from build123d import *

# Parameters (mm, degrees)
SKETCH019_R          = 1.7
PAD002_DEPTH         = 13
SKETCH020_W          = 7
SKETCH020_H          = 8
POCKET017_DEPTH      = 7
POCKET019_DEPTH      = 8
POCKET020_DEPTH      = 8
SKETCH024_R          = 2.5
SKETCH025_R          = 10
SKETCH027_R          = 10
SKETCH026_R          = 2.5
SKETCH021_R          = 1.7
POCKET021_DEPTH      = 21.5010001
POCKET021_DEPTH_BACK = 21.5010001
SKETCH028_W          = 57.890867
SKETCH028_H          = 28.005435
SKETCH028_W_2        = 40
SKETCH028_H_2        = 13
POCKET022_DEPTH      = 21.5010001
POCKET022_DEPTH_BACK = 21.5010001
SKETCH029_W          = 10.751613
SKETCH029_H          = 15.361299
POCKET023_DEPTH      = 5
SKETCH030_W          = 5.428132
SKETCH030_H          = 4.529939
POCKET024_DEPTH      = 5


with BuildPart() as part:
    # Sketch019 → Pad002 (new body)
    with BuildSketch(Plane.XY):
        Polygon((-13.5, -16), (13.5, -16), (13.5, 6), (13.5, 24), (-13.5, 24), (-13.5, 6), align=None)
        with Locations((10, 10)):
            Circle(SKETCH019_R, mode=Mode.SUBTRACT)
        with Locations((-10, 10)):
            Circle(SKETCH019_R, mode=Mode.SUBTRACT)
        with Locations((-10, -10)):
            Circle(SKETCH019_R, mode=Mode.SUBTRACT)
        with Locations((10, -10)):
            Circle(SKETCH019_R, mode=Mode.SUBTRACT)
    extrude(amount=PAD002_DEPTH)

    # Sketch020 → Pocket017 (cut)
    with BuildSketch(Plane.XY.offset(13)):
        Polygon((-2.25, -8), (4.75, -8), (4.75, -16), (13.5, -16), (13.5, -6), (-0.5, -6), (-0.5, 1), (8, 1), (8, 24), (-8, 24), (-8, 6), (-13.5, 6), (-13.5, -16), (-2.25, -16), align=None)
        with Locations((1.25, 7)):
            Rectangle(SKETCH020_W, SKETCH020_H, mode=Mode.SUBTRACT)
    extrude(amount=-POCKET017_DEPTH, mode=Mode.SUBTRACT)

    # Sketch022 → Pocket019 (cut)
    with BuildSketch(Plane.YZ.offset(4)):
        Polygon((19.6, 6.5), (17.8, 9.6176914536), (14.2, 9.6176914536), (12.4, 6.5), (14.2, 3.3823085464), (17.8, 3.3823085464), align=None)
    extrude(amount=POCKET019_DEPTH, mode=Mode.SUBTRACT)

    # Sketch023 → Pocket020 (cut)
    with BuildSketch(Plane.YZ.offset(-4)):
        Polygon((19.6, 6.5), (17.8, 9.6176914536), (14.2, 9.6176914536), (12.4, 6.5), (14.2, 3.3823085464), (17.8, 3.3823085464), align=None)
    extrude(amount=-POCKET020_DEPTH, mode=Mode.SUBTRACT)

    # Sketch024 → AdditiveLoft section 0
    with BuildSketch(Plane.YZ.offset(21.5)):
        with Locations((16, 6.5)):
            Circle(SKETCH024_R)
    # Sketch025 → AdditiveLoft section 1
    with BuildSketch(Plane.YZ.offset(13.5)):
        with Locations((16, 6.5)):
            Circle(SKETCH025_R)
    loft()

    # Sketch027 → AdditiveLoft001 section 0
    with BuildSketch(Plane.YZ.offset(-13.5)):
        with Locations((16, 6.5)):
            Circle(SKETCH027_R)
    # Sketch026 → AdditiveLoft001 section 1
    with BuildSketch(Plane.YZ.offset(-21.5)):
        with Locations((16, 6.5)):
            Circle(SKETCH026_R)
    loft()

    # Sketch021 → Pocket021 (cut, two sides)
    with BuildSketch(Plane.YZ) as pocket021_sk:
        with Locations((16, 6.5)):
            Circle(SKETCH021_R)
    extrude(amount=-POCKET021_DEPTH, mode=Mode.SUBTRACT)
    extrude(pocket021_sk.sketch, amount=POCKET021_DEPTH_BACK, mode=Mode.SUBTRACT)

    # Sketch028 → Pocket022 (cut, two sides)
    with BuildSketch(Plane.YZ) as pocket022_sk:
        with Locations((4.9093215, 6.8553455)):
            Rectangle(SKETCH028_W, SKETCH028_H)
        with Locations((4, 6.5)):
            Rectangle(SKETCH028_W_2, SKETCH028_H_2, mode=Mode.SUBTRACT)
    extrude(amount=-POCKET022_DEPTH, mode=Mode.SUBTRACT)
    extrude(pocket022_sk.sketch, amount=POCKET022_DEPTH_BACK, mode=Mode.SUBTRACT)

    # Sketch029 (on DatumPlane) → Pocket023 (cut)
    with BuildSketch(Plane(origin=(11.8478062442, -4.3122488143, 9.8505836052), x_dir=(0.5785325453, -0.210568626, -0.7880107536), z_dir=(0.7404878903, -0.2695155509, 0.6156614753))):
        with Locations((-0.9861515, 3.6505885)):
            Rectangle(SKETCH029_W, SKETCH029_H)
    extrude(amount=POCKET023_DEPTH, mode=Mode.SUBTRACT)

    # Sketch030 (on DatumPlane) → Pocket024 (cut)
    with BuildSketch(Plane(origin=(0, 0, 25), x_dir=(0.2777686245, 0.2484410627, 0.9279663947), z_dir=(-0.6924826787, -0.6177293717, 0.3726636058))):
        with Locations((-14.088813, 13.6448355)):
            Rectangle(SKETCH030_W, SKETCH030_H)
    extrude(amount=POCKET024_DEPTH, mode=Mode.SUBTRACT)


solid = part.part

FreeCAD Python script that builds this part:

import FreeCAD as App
import Part
import Sketcher
Q = App.Units.Quantity


def add_polygon(sketch, points):
    """Adds a closed chain of lines whose ends are joined by coincident constraints."""
    first, n = sketch.GeometryCount, len(points)
    for a, b in zip(points, points[1:] + points[:1]):
        sketch.addGeometry(Part.LineSegment(App.Vector(*a, 0), App.Vector(*b, 0)), False)
    for i in range(n):
        sketch.addConstraint(Sketcher.Constraint("Coincident", first + i, 2, first + (i + 1) % n, 1))

doc = App.newDocument("Part")
body = doc.addObject("PartDesign::Body", "Body")

# Sketch on XY plane
sketch1 = body.newObject("Sketcher::SketchObject", "Sketch")
sketch1.AttachmentSupport = (doc.getObject("XY_Plane"), [""])
sketch1.MapMode = "FlatFace"
add_polygon(sketch1, [(-13.5, -16), (13.5, -16), (13.5, 24), (-13.5, 24)])  # lines 0-3
sketch1.addGeometry(Part.Circle(App.Vector(-10, -10, 0), App.Vector(0, 0, 1), 1.7), False)  # 4
sketch1.addGeometry(Part.Circle(App.Vector(10, -10, 0), App.Vector(0, 0, 1), 1.7), False)  # 5
sketch1.addGeometry(Part.Circle(App.Vector(-10, 10, 0), App.Vector(0, 0, 1), 1.7), False)  # 6
sketch1.addGeometry(Part.Circle(App.Vector(10, 10, 0), App.Vector(0, 0, 1), 1.7), False)  # 7
sketch1.addConstraint([
    Sketcher.Constraint("Horizontal", 0),
    Sketcher.Constraint("Vertical", 1),
    Sketcher.Constraint("Horizontal", 2),
    Sketcher.Constraint("Vertical", 3),
    Sketcher.Constraint("Equal", 4, 5),
    Sketcher.Constraint("Equal", 5, 6),
    Sketcher.Constraint("Equal", 6, 7),
    Sketcher.Constraint("Symmetric", 5, 3, 6, 3, -1, 1),
    Sketcher.Constraint("Symmetric", 4, 3, 7, 3, -1, 1),
    Sketcher.Constraint("Symmetric", 4, 3, 5, 3, -2),
    Sketcher.Constraint("Diameter", 4, Q("3.4 mm")),
    Sketcher.Constraint("DistanceX", 0, 1, 0, 2, Q("27 mm")),
    Sketcher.Constraint("DistanceY", 1, 1, 1, 2, Q("40 mm")),
    Sketcher.Constraint("DistanceX", 4, 3, -1, 1, Q("10 mm")),
    Sketcher.Constraint("DistanceY", 4, 3, -1, 1, Q("10 mm")),
    Sketcher.Constraint("DistanceY", 0, 2, -1, 1, Q("16 mm")),
    Sketcher.Constraint("DistanceX", -1, 1, 0, 2, Q("13.5 mm")),
])
pad1 = body.newObject("PartDesign::Pad", "Pad")
pad1.Profile = sketch1
pad1.Length = 13

# Sketch on XY plane
sketch2 = body.newObject("Sketcher::SketchObject", "Sketch001")
sketch2.AttachmentSupport = (doc.getObject("XY_Plane"), [""])
sketch2.MapMode = "FlatFace"
sketch2.AttachmentOffset = App.Placement(App.Vector(0, 0, 13), App.Rotation())
add_polygon(sketch2, [(-2.25, -8), (4.75, -8), (4.75, -16), (13.5, -16), (13.5, -6), (-0.5, -6), (-0.5, 1), (8, 1), (8, 24), (-8, 24), (-8, 6), (-13.5, 6), (-13.5, -16), (-2.25, -16)])  # lines 0-13
add_polygon(sketch2, [(4.75, 3), (-2.25, 3), (-2.25, 11), (4.75, 11)])  # lines 14-17
sketch2.addConstraint([
    Sketcher.Constraint("Horizontal", 0),
    Sketcher.Constraint("Vertical", 1),
    Sketcher.Constraint("Horizontal", 2),
    Sketcher.Constraint("Vertical", 3),
    Sketcher.Constraint("Horizontal", 4),
    Sketcher.Constraint("Vertical", 5),
    Sketcher.Constraint("Horizontal", 6),
    Sketcher.Constraint("Vertical", 7),
    Sketcher.Constraint("Horizontal", 8),
    Sketcher.Constraint("Vertical", 9),
    Sketcher.Constraint("Horizontal", 10),
    Sketcher.Constraint("Vertical", 11),
    Sketcher.Constraint("Horizontal", 12),
    Sketcher.Constraint("Vertical", 13),
    Sketcher.Constraint("Horizontal", 14),
    Sketcher.Constraint("Vertical", 15),
    Sketcher.Constraint("Horizontal", 16),
    Sketcher.Constraint("Vertical", 17),
    Sketcher.Constraint("Symmetric", 3, 2, 10, 2, -1, 1),
    Sketcher.Constraint("Horizontal", 2, 2, 11, 2),
    Sketcher.Constraint("Vertical", 13, 2, 14, 2),
    Sketcher.Constraint("Vertical", 1, 2, 16, 2),
    Sketcher.Constraint("Equal", 16, 5),
    Sketcher.Constraint("Equal", 13, 15),
    Sketcher.Constraint("DistanceX", 0, 1, 0, 2, Q("7 mm")),
    Sketcher.Constraint("DistanceX", 4, 2, 4, 1, Q("14 mm")),
    Sketcher.Constraint("DistanceX", 8, 2, 8, 1, Q("16 mm")),
    Sketcher.Constraint("DistanceY", 1, 2, 1, 1, Q("8 mm")),
    Sketcher.Constraint("DistanceY", 3, 1, 3, 2, Q("10 mm")),
    Sketcher.Constraint("DistanceY", 7, 1, 7, 2, Q("23 mm")),
    Sketcher.Constraint("DistanceY", 9, 2, 9, 1, Q("18 mm")),
    Sketcher.Constraint("DistanceX", 6, 1, 6, 2, Q("8.5 mm")),
    Sketcher.Constraint("DistanceX", 10, 2, 10, 1, Q("5.5 mm")),
    Sketcher.Constraint("DistanceY", -1, 1, 14, 2, Q("3 mm")),
    Sketcher.Constraint("DistanceX", 2, 1, 2, 2, Q("8.75 mm")),
])
pocket1 = body.newObject("PartDesign::Pocket", "Pocket")
pocket1.Profile = sketch2
pocket1.Length = 7

# Sketch on YZ plane
sketch3 = body.newObject("Sketcher::SketchObject", "Sketch002")
sketch3.AttachmentSupport = (doc.getObject("YZ_Plane"), [""])
sketch3.MapMode = "FlatFace"
sketch3.AttachmentOffset = App.Placement(App.Vector(0, 0, 4), App.Rotation())
add_polygon(sketch3, [(19.6, 6.5), (17.8, 9.617691), (14.2, 9.617691), (12.4, 6.5), (14.2, 3.382309), (17.8, 3.382309)])  # lines 0-5
sketch3.addConstraint([
    Sketcher.Constraint("Horizontal", 1),
    Sketcher.Constraint("Horizontal", 4),
    Sketcher.Constraint("Parallel", 0, 3),
    Sketcher.Constraint("Parallel", 2, 5),
    Sketcher.Constraint("Horizontal", 2, 2, 5, 2),
    Sketcher.Constraint("Vertical", 1, 2, 3, 2),
    Sketcher.Constraint("Vertical", 0, 2, 4, 2),
    Sketcher.Constraint("Angle", 0, Q("120 deg")),
    Sketcher.Constraint("DistanceX", 1, 2, 1, 1, Q("3.6 mm")),
    Sketcher.Constraint("Distance", 0, Q("3.6 mm")),
    Sketcher.Constraint("DistanceX", -1, 1, 0, 2, Q("17.8 mm")),
    Sketcher.Constraint("DistanceY", -1, 1, 2, 2, Q("6.5 mm")),
])
pocket2 = body.newObject("PartDesign::Pocket", "Pocket001")
pocket2.Profile = sketch3
pocket2.Length = 8
pocket2.Reversed = True

# Sketch on YZ plane
sketch4 = body.newObject("Sketcher::SketchObject", "Sketch003")
sketch4.AttachmentSupport = (doc.getObject("YZ_Plane"), [""])
sketch4.MapMode = "FlatFace"
sketch4.AttachmentOffset = App.Placement(App.Vector(0, 0, -4), App.Rotation())
add_polygon(sketch4, [(19.6, 6.5), (17.8, 9.617691), (14.2, 9.617691), (12.4, 6.5), (14.2, 3.382309), (17.8, 3.382309)])  # lines 0-5
sketch4.addConstraint([
    Sketcher.Constraint("Horizontal", 1),
    Sketcher.Constraint("Horizontal", 4),
    Sketcher.Constraint("Parallel", 0, 3),
    Sketcher.Constraint("Parallel", 2, 5),
    Sketcher.Constraint("Horizontal", 2, 2, 5, 2),
    Sketcher.Constraint("Vertical", 1, 2, 3, 2),
    Sketcher.Constraint("Vertical", 0, 2, 4, 2),
    Sketcher.Constraint("Angle", 0, Q("120 deg")),
    Sketcher.Constraint("DistanceX", 1, 2, 1, 1, Q("3.6 mm")),
    Sketcher.Constraint("Distance", 0, Q("3.6 mm")),
    Sketcher.Constraint("DistanceX", -1, 1, 0, 2, Q("17.8 mm")),
    Sketcher.Constraint("DistanceY", -1, 1, 2, 2, Q("6.5 mm")),
])
pocket3 = body.newObject("PartDesign::Pocket", "Pocket002")
pocket3.Profile = sketch4
pocket3.Length = 8

# Sketch on YZ plane
sketch5 = body.newObject("Sketcher::SketchObject", "Sketch004")
sketch5.AttachmentSupport = (doc.getObject("YZ_Plane"), [""])
sketch5.MapMode = "FlatFace"
sketch5.AttachmentOffset = App.Placement(App.Vector(0, 0, 21.5), App.Rotation())
sketch5.addGeometry(Part.Circle(App.Vector(16, 6.5, 0), App.Vector(0, 0, 1), 2.5), False)
sketch5.addConstraint([
    Sketcher.Constraint("Diameter", 0, Q("5 mm")),
    Sketcher.Constraint("DistanceX", -1, 1, 0, 3, Q("16 mm")),
    Sketcher.Constraint("DistanceY", -1, 1, 0, 3, Q("6.5 mm")),
])

# Sketch on YZ plane
sketch6 = body.newObject("Sketcher::SketchObject", "Sketch005")
sketch6.AttachmentSupport = (doc.getObject("YZ_Plane"), [""])
sketch6.MapMode = "FlatFace"
sketch6.AttachmentOffset = App.Placement(App.Vector(0, 0, 13.5), App.Rotation())
sketch6.addGeometry(Part.Circle(App.Vector(16, 6.5, 0), App.Vector(0, 0, 1), 10), False)
sketch6.addConstraint([
    Sketcher.Constraint("Diameter", 0, Q("20 mm")),
    Sketcher.Constraint("DistanceX", -1, 1, 0, 3, Q("16 mm")),
    Sketcher.Constraint("DistanceY", -1, 1, 0, 3, Q("6.5 mm")),
])

additiveloft = body.newObject("PartDesign::AdditiveLoft", "AdditiveLoft")
additiveloft.Profile = sketch5
additiveloft.Sections = [sketch6]

# Sketch on YZ plane
sketch7 = body.newObject("Sketcher::SketchObject", "Sketch006")
sketch7.AttachmentSupport = (doc.getObject("YZ_Plane"), [""])
sketch7.MapMode = "FlatFace"
sketch7.AttachmentOffset = App.Placement(App.Vector(0, 0, -13.5), App.Rotation())
sketch7.addGeometry(Part.Circle(App.Vector(16, 6.5, 0), App.Vector(0, 0, 1), 10), False)
sketch7.addConstraint([
    Sketcher.Constraint("Diameter", 0, Q("20 mm")),
    Sketcher.Constraint("DistanceX", -1, 1, 0, 3, Q("16 mm")),
    Sketcher.Constraint("DistanceY", -1, 1, 0, 3, Q("6.5 mm")),
])

# Sketch on YZ plane
sketch8 = body.newObject("Sketcher::SketchObject", "Sketch007")
sketch8.AttachmentSupport = (doc.getObject("YZ_Plane"), [""])
sketch8.MapMode = "FlatFace"
sketch8.AttachmentOffset = App.Placement(App.Vector(0, 0, -21.5), App.Rotation())
sketch8.addGeometry(Part.Circle(App.Vector(16, 6.5, 0), App.Vector(0, 0, 1), 2.5), False)
sketch8.addConstraint([
    Sketcher.Constraint("Diameter", 0, Q("5 mm")),
    Sketcher.Constraint("DistanceX", -1, 1, 0, 3, Q("16 mm")),
    Sketcher.Constraint("DistanceY", -1, 1, 0, 3, Q("6.5 mm")),
])

additiveloft2 = body.newObject("PartDesign::AdditiveLoft", "AdditiveLoft001")
additiveloft2.Profile = sketch7
additiveloft2.Sections = [sketch8]

# Sketch on YZ plane
sketch9 = body.newObject("Sketcher::SketchObject", "Sketch008")
sketch9.AttachmentSupport = (doc.getObject("YZ_Plane"), [""])
sketch9.MapMode = "FlatFace"
sketch9.addGeometry(Part.Circle(App.Vector(16, 6.5, 0), App.Vector(0, 0, 1), 1.7), False)
sketch9.addConstraint([
    Sketcher.Constraint("Diameter", 0, Q("3.4 mm")),
    Sketcher.Constraint("DistanceX", -1, 1, 0, 3, Q("16 mm")),
    Sketcher.Constraint("DistanceY", -1, 1, 0, 3, Q("6.5 mm")),
])
pocket4 = body.newObject("PartDesign::Pocket", "Pocket003")
pocket4.Profile = sketch9
pocket4.Type = "ThroughAll"
pocket4.Midplane = True

# Sketch on YZ plane
sketch10 = body.newObject("Sketcher::SketchObject", "Sketch009")
sketch10.AttachmentSupport = (doc.getObject("YZ_Plane"), [""])
sketch10.MapMode = "FlatFace"
add_polygon(sketch10, [(-24.036112, 20.858063), (-24.036112, -7.147372), (33.854755, -7.147372), (33.854755, 20.858063)])  # lines 0-3
add_polygon(sketch10, [(24, 0), (-16, 0), (-16, 13), (24, 13)])  # lines 4-7
sketch10.addConstraint([
    Sketcher.Constraint("Vertical", 0),
    Sketcher.Constraint("Horizontal", 1),
    Sketcher.Constraint("Vertical", 2),
    Sketcher.Constraint("Horizontal", 3),
    Sketcher.Constraint("Horizontal", 4),
    Sketcher.Constraint("Vertical", 5),
    Sketcher.Constraint("Horizontal", 6),
    Sketcher.Constraint("Vertical", 7),
    Sketcher.Constraint("PointOnObject", 4, 2, -1),
    Sketcher.Constraint("DistanceX", 4, 2, 4, 1, Q("40 mm")),
    Sketcher.Constraint("DistanceY", 5, 1, 5, 2, Q("13 mm")),
    Sketcher.Constraint("DistanceX", 4, 2, -1, 1, Q("16 mm")),
    Sketcher.Constraint("DistanceX", 1, 1, 1, 2, Q("57.890867 mm")),
    Sketcher.Constraint("DistanceY", 0, 2, 0, 1, Q("28.005435 mm")),
    Sketcher.Constraint("DistanceX", 0, 2, -1, 1, Q("24.036112 mm")),
    Sketcher.Constraint("DistanceY", 0, 2, -1, 1, Q("7.147372 mm")),
])
pocket5 = body.newObject("PartDesign::Pocket", "Pocket004")
pocket5.Profile = sketch10
pocket5.Type = "ThroughAll"
pocket5.Midplane = True

# Sketch on an angled plane
sketch11 = body.newObject("Sketcher::SketchObject", "Sketch010")
sketch11.Placement = App.Placement(App.Vector(11.847806, -4.312249, 9.850584), App.Rotation(App.Vector(0.578532545, -0.210568626, -0.788010754), App.Vector(0.342020143, 0.939692621, 0), App.Vector(0.74048789, -0.269515551, 0.615661475), "ZXY"))
add_polygon(sketch11, [(-6.361958, 11.331238), (-6.361958, -4.030061), (4.389655, -4.030061), (4.389655, 11.331238)])  # lines 0-3
sketch11.addConstraint([
    Sketcher.Constraint("Vertical", 0),
    Sketcher.Constraint("Horizontal", 1),
    Sketcher.Constraint("Vertical", 2),
    Sketcher.Constraint("Horizontal", 3),
    Sketcher.Constraint("DistanceY", 0, 2, 0, 1, Q("15.361299 mm")),
    Sketcher.Constraint("DistanceX", 1, 1, 1, 2, Q("10.751613 mm")),
    Sketcher.Constraint("DistanceX", 0, 2, -1, 1, Q("6.361958 mm")),
    Sketcher.Constraint("DistanceY", 0, 2, -1, 1, Q("4.030061 mm")),
])
pocket6 = body.newObject("PartDesign::Pocket", "Pocket005")
pocket6.Profile = sketch11
pocket6.Length = 5
pocket6.Reversed = True

# Sketch on an angled plane
sketch12 = body.newObject("Sketcher::SketchObject", "Sketch011")
sketch12.Placement = App.Placement(App.Vector(0, 0, 25), App.Rotation(App.Vector(0.277768624, 0.248441063, 0.927966395), App.Vector(-0.665817041, 0.746114912, -0.000455295), App.Vector(-0.692482679, -0.617729372, 0.372663606), "ZXY"))
add_polygon(sketch12, [(-16.802879, 15.909805), (-16.802879, 11.379866), (-11.374747, 11.379866), (-11.374747, 15.909805)])  # lines 0-3
sketch12.addConstraint([
    Sketcher.Constraint("Vertical", 0),
    Sketcher.Constraint("Horizontal", 1),
    Sketcher.Constraint("Vertical", 2),
    Sketcher.Constraint("Horizontal", 3),
    Sketcher.Constraint("DistanceY", 0, 2, 0, 1, Q("4.529939 mm")),
    Sketcher.Constraint("DistanceX", 1, 1, 1, 2, Q("5.428132 mm")),
    Sketcher.Constraint("DistanceX", 0, 2, -1, 1, Q("16.802879 mm")),
    Sketcher.Constraint("DistanceY", -1, 1, 0, 2, Q("11.379866 mm")),
])
pocket7 = body.newObject("PartDesign::Pocket", "Pocket006")
pocket7.Profile = sketch12
pocket7.Length = 5
pocket7.Reversed = True

doc.recompute()
